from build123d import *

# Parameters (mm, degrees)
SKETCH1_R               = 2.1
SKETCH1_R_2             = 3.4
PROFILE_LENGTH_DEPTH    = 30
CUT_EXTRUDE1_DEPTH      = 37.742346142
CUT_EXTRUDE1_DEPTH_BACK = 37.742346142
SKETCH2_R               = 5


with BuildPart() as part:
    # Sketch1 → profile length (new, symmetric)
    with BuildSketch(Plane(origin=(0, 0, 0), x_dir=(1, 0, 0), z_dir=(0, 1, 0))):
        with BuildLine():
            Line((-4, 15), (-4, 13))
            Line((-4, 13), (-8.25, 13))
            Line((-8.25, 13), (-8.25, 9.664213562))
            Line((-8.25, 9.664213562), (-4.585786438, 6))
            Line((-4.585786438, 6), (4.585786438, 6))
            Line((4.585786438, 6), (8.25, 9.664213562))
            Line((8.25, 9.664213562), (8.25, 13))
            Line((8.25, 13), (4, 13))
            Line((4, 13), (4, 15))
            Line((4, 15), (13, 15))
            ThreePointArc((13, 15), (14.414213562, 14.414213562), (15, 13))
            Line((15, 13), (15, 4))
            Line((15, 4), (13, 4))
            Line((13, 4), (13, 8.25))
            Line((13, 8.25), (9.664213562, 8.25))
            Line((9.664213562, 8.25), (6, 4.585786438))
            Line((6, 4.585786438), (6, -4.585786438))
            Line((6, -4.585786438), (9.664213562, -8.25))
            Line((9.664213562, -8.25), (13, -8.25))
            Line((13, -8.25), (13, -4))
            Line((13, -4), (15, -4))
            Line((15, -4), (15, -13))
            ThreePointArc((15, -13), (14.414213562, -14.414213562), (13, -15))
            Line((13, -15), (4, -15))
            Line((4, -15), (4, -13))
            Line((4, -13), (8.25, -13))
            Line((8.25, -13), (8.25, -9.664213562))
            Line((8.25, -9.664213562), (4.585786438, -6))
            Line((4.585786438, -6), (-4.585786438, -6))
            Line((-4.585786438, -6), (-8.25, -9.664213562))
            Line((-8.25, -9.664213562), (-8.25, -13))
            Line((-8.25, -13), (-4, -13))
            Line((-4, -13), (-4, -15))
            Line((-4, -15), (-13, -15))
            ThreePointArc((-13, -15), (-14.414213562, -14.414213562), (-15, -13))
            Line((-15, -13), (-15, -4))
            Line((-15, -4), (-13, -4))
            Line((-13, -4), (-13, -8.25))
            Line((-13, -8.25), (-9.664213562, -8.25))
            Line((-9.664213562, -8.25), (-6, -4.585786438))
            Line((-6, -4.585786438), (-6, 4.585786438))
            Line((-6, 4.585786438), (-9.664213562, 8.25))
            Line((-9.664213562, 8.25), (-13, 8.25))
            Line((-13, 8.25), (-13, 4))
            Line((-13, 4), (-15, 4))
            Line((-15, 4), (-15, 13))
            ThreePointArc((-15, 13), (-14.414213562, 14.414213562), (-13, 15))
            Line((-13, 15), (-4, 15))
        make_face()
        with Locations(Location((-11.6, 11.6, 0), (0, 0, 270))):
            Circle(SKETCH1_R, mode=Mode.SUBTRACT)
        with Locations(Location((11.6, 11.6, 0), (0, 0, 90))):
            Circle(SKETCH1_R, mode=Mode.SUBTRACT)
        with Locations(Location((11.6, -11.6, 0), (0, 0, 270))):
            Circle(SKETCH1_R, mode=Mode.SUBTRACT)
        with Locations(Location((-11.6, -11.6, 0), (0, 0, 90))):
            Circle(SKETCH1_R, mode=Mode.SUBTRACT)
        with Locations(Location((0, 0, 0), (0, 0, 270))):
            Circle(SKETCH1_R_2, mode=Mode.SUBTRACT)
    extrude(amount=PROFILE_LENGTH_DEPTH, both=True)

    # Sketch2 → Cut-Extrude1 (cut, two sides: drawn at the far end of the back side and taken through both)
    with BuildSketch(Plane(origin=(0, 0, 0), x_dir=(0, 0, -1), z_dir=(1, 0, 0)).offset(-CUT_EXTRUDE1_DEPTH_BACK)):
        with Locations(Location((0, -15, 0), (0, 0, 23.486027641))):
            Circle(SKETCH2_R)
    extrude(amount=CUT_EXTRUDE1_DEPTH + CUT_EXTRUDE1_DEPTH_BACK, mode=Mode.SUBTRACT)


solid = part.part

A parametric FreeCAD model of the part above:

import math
import FreeCAD as App
import Part
import Sketcher
from FreeCAD import Vector
Q = App.Units.Quantity

doc = App.newDocument("Part")
body = doc.addObject("PartDesign::Body", "Body")

# Sketch on XZ plane
sketch1 = doc.addObject("Sketcher::SketchObject", "Sketch")
body.addObject(sketch1)
sketch1.AttachmentSupport = (doc.XZ_Plane, [""])
sketch1.MapMode = "FlatFace"
sketch1.addGeometry([
    Part.LineSegment(Vector(-4, -13, 0), Vector(-4, -15, 0)),  # 0
    Part.LineSegment(Vector(-4, -15, 0), Vector(-13, -15, 0)),  # 1
    Part.ArcOfCircle(Part.Circle(Vector(-13, -13, 0), Vector(0, 0, 1), 2), math.radians(-180), math.radians(-90)),  # 2
    Part.LineSegment(Vector(-15, -13, 0), Vector(-15, -4, 0)),  # 3
    Part.LineSegment(Vector(-15, -4, 0), Vector(-13, -4, 0)),  # 4
    Part.LineSegment(Vector(-13, -4, 0), Vector(-13, -8.2, 0)),  # 5
    Part.LineSegment(Vector(-13, -8.2, 0), Vector(-9.7, -8.2, 0)),  # 6
    Part.LineSegment(Vector(-9.7, -8.2, 0), Vector(-6, -4.6, 0)),  # 7
    Part.LineSegment(Vector(-6, -4.6, 0), Vector(-6, 4.6, 0)),  # 8
    Part.LineSegment(Vector(-6, 4.6, 0), Vector(-9.7, 8.2, 0)),  # 9
    Part.LineSegment(Vector(-9.7, 8.2, 0), Vector(-13, 8.2, 0)),  # 10
    Part.LineSegment(Vector(-13, 8.2, 0), Vector(-13, 4, 0)),  # 11
    Part.LineSegment(Vector(-13, 4, 0), Vector(-15, 4, 0)),  # 12
    Part.LineSegment(Vector(-15, 4, 0), Vector(-15, 13, 0)),  # 13
    Part.ArcOfCircle(Part.Circle(Vector(-13, 13, 0), Vector(0, 0, 1), 2), math.radians(90), math.radians(180)),  # 14
    Part.LineSegment(Vector(-13, 15, 0), Vector(-4, 15, 0)),  # 15
    Part.LineSegment(Vector(-4, 15, 0), Vector(-4, 13, 0)),  # 16
    Part.LineSegment(Vector(-4, 13, 0), Vector(-8.2, 13, 0)),  # 17
    Part.LineSegment(Vector(-8.2, 13, 0), Vector(-8.2, 9.7, 0)),  # 18
    Part.LineSegment(Vector(-8.2, 9.7, 0), Vector(-4.6, 6, 0)),  # 19
    Part.LineSegment(Vector(-4.6, 6, 0), Vector(4.6, 6, 0)),  # 20
    Part.LineSegment(Vector(4.6, 6, 0), Vector(8.2, 9.7, 0)),  # 21
    Part.LineSegment(Vector(8.2, 9.7, 0), Vector(8.2, 13, 0)),  # 22
    Part.LineSegment(Vector(8.2, 13, 0), Vector(4, 13, 0)),  # 23
    Part.LineSegment(Vector(4, 13, 0), Vector(4, 15, 0)),  # 24
    Part.LineSegment(Vector(4, 15, 0), Vector(13, 15, 0)),  # 25
    Part.ArcOfCircle(Part.Circle(Vector(13, 13, 0), Vector(0, 0, 1), 2), math.radians(0), math.radians(90)),  # 26
    Part.LineSegment(Vector(15, 13, 0), Vector(15, 4, 0)),  # 27
    Part.LineSegment(Vector(15, 4, 0), Vector(13, 4, 0)),  # 28
    Part.LineSegment(Vector(13, 4, 0), Vector(13, 8.2, 0)),  # 29
    Part.LineSegment(Vector(13, 8.2, 0), Vector(9.7, 8.2, 0)),  # 30
    Part.LineSegment(Vector(9.7, 8.2, 0), Vector(6, 4.6, 0)),  # 31
    Part.LineSegment(Vector(6, 4.6, 0), Vector(6, -4.6, 0)),  # 32
    Part.LineSegment(Vector(6, -4.6, 0), Vector(9.7, -8.2, 0)),  # 33
    Part.LineSegment(Vector(9.7, -8.2, 0), Vector(13, -8.2, 0)),  # 34
    Part.LineSegment(Vector(13, -8.2, 0), Vector(13, -4, 0)),  # 35
    Part.LineSegment(Vector(13, -4, 0), Vector(15, -4, 0)),  # 36
    Part.LineSegment(Vector(15, -4, 0), Vector(15, -13, 0)),  # 37
    Part.ArcOfCircle(Part.Circle(Vector(13, -13, 0), Vector(0, 0, 1), 2), math.radians(-90), math.radians(0)),  # 38
    Part.LineSegment(Vector(13, -15, 0), Vector(4, -15, 0)),  # 39
    Part.LineSegment(Vector(4, -15, 0), Vector(4, -13, 0)),  # 40
    Part.LineSegment(Vector(4, -13, 0), Vector(8.2, -13, 0)),  # 41
    Part.LineSegment(Vector(8.2, -13, 0), Vector(8.2, -9.7, 0)),  # 42
    Part.LineSegment(Vector(8.2, -9.7, 0), Vector(4.6, -6, 0)),  # 43
    Part.LineSegment(Vector(4.6, -6, 0), Vector(-4.6, -6, 0)),  # 44
    Part.LineSegment(Vector(-4.6, -6, 0), Vector(-8.2, -9.7, 0)),  # 45
    Part.LineSegment(Vector(-8.2, -9.7, 0), Vector(-8.2, -13, 0)),  # 46
    Part.LineSegment(Vector(-8.2, -13, 0), Vector(-4, -13, 0)),  # 47
    Part.Circle(Vector(11.6, 11.6, 0), Vector(0, 0, 1), 2.1),  # 48
    Part.Circle(Vector(-11.6, 11.6, 0), Vector(0, 0, 1), 2.1),  # 49
    Part.Circle(Vector(11.6, -11.6, 0), Vector(0, 0, 1), 2.1),  # 50
    Part.Circle(Vector(0, 0, 0), Vector(0, 0, 1), 3.4),  # 51
    Part.Circle(Vector(-11.6, -11.6, 0), Vector(0, 0, 1), 2.1),  # 52
], False)
sketch1.addConstraint([
    Sketcher.Constraint("Coincident", 0, 2, 1, 1),
    Sketcher.Constraint("Tangent", 1, 2, 2, 2),
    Sketcher.Constraint("Tangent", 2, 1, 3, 1),
    Sketcher.Constraint("Coincident", 3, 2, 4, 1),
    Sketcher.Constraint("Coincident", 4, 2, 5, 1),
    Sketcher.Constraint("Coincident", 5, 2, 6, 1),
    Sketcher.Constraint("Coincident", 6, 2, 7, 1),
    Sketcher.Constraint("Coincident", 7, 2, 8, 1),
    Sketcher.Constraint("Coincident", 8, 2, 9, 1),
    Sketcher.Constraint("Coincident", 9, 2, 10, 1),
    Sketcher.Constraint("Coincident", 10, 2, 11, 1),
    Sketcher.Constraint("Coincident", 11, 2, 12, 1),
    Sketcher.Constraint("Coincident", 12, 2, 13, 1),
    Sketcher.Constraint("Tangent", 13, 2, 14, 2),
    Sketcher.Constraint("Tangent", 14, 1, 15, 1),
    Sketcher.Constraint("Coincident", 15, 2, 16, 1),
    Sketcher.Constraint("Coincident", 16, 2, 17, 1),
    Sketcher.Constraint("Coincident", 17, 2, 18, 1),
    Sketcher.Constraint("Coincident", 18, 2, 19, 1),
    Sketcher.Constraint("Coincident", 19, 2, 20, 1),
    Sketcher.Constraint("Coincident", 20, 2, 21, 1),
    Sketcher.Constraint("Coincident", 21, 2, 22, 1),
    Sketcher.Constraint("Coincident", 22, 2, 23, 1),
    Sketcher.Constraint("Coincident", 23, 2, 24, 1),
    Sketcher.Constraint("Coincident", 24, 2, 25, 1),
    Sketcher.Constraint("Tangent", 25, 2, 26, 2),
    Sketcher.Constraint("Tangent", 26, 1, 27, 1),
    Sketcher.Constraint("Coincident", 27, 2, 28, 1),
    Sketcher.Constraint("Coincident", 28, 2, 29, 1),
    Sketcher.Constraint("Coincident", 29, 2, 30, 1),
    Sketcher.Constraint("Coincident", 30, 2, 31, 1),
    Sketcher.Constraint("Coincident", 31, 2, 32, 1),
    Sketcher.Constraint("Coincident", 32, 2, 33, 1),
    Sketcher.Constraint("Coincident", 33, 2, 34, 1),
    Sketcher.Constraint("Coincident", 34, 2, 35, 1),
    Sketcher.Constraint("Coincident", 35, 2, 36, 1),
    Sketcher.Constraint("Coincident", 36, 2, 37, 1),
    Sketcher.Constraint("Tangent", 37, 2, 38, 2),
    Sketcher.Constraint("Tangent", 38, 1, 39, 1),
    Sketcher.Constraint("Coincident", 39, 2, 40, 1),
    Sketcher.Constraint("Coincident", 40, 2, 41, 1),
    Sketcher.Constraint("Coincident", 41, 2, 42, 1),
    Sketcher.Constraint("Coincident", 42, 2, 43, 1),
    Sketcher.Constraint("Coincident", 43, 2, 44, 1),
    Sketcher.Constraint("Coincident", 44, 2, 45, 1),
    Sketcher.Constraint("Coincident", 45, 2, 46, 1),
    Sketcher.Constraint("Coincident", 46, 2, 47, 1),
    Sketcher.Constraint("Coincident", 47, 2, 0, 1),
    Sketcher.Constraint("Vertical", 0),
    Sketcher.Constraint("Horizontal", 1),
    Sketcher.Constraint("Vertical", 3),
    Sketcher.Constraint("Horizontal", 4),
    Sketcher.Constraint("Vertical", 5),
    Sketcher.Constraint("Horizontal", 6),
    Sketcher.Constraint("Vertical", 8),
    Sketcher.Constraint("Horizontal", 10),
    Sketcher.Constraint("Vertical", 11),
    Sketcher.Constraint("Horizontal", 12),
    Sketcher.Constraint("Vertical", 13),
    Sketcher.Constraint("Horizontal", 15),
    Sketcher.Constraint("Vertical", 16),
    Sketcher.Constraint("Horizontal", 17),
    Sketcher.Constraint("Vertical", 18),
    Sketcher.Constraint("Horizontal", 20),
    Sketcher.Constraint("Vertical", 22),
    Sketcher.Constraint("Horizontal", 23),
    Sketcher.Constraint("Vertical", 24),
    Sketcher.Constraint("Horizontal", 25),
    Sketcher.Constraint("Vertical", 27),
    Sketcher.Constraint("Horizontal", 28),
    Sketcher.Constraint("Vertical", 29),
    Sketcher.Constraint("Horizontal", 30),
    Sketcher.Constraint("Vertical", 32),
    Sketcher.Constraint("Horizontal", 34),
    Sketcher.Constraint("Vertical", 35),
    Sketcher.Constraint("Horizontal", 36),
    Sketcher.Constraint("Vertical", 37),
    Sketcher.Constraint("Horizontal", 39),
    Sketcher.Constraint("Vertical", 40),
    Sketcher.Constraint("Horizontal", 41),
    Sketcher.Constraint("Vertical", 42),
    Sketcher.Constraint("Horizontal", 44),
    Sketcher.Constraint("Vertical", 46),
    Sketcher.Constraint("Horizontal", 47),
    Sketcher.Constraint("Coincident", 51, 3, -1, 1),
    Sketcher.Constraint("Equal", 2, 14),
    Sketcher.Constraint("Equal", 14, 26),
    Sketcher.Constraint("Equal", 26, 38),
    Sketcher.Constraint("Equal", 48, 49),
    Sketcher.Constraint("Equal", 49, 50),
    Sketcher.Constraint("Equal", 50, 52),
    Sketcher.Constraint("Symmetric", 2, 3, 26, 3, -1, 1),
    Sketcher.Constraint("Symmetric", 14, 3, 38, 3, -1, 1),
    Sketcher.Constraint("Symmetric", 49, 3, 50, 3, -1, 1),
    Sketcher.Constraint("Symmetric", 48, 3, 52, 3, -1, 1),
    Sketcher.Constraint("Symmetric", 4, 2, 28, 2, -1, 1),
    Sketcher.Constraint("Symmetric", 6, 2, 30, 2, -1, 1),
    Sketcher.Constraint("Symmetric", 7, 2, 31, 2, -1, 1),
    Sketcher.Constraint("Symmetric", 9, 2, 33, 2, -1, 1),
    Sketcher.Constraint("Symmetric", 11, 2, 35, 2, -1, 1),
    Sketcher.Constraint("Symmetric", 16, 2, 40, 2, -1, 1),
    Sketcher.Constraint("Symmetric", 18, 2, 42, 2, -1, 1),
    Sketcher.Constraint("Symmetric", 19, 2, 43, 2, -1, 1),
    Sketcher.Constraint("Symmetric", 21, 2, 45, 2, -1, 1),
    Sketcher.Constraint("Symmetric", 23, 2, 47, 2, -1, 1),
    Sketcher.Constraint("Symmetric", 14, 3, 26, 3, -2),
    Sketcher.Constraint("Symmetric", 48, 3, 49, 3, -2),
    Sketcher.Constraint("Symmetric", 18, 2, 21, 2, -2),
    Sketcher.Constraint("Symmetric", 16, 2, 23, 2, -2),
    Sketcher.Constraint("Symmetric", 11, 2, 28, 2, -2),
    Sketcher.Constraint("Symmetric", 9, 2, 30, 2, -2),
    Sketcher.Constraint("Perpendicular", 7, 9),
    Sketcher.Constraint("Parallel", 9, 19),
    Sketcher.Constraint("Perpendicular", 19, 21),
    Sketcher.Constraint("Perpendicular", 31, 33),
    Sketcher.Constraint("Perpendicular", 43, 45),
    Sketcher.Constraint("Horizontal", 13, 2, 16, 2),
    Sketcher.Constraint("Horizontal", 8, 2, 31, 2),
    Sketcher.Constraint("Vertical", 1, 2, 4, 2),
    Sketcher.Constraint("Equal", 39, 3),
    Sketcher.Constraint("Equal", 47, 5),
    Sketcher.Constraint("Equal", 44, 8),
    Sketcher.Constraint("Equal", 34, 18),
    Sketcher.Constraint("Equal", 9, 19),
    Sketcher.Constraint("Radius", 2, Q("2 mm")),
    Sketcher.Constraint("Diameter", 48, Q("4.2 mm")),
    Sketcher.Constraint("Diameter", 51, Q("6.8 mm")),
    Sketcher.Constraint("DistanceX", 1, 2, 1, 1, Q("9 mm")),
    Sketcher.Constraint("DistanceX", 2, 3, -1, 1, Q("13 mm")),
    Sketcher.Constraint("DistanceX", 7, 2, -1, 1, Q("6 mm")),
    Sketcher.Constraint("DistanceX", 17, 2, 17, 1, Q("4.25 mm")),
    Sketcher.Constraint("DistanceX", -1, 1, 48, 3, Q("11.6 mm")),
    Sketcher.Constraint("DistanceY", -1, 1, 48, 3, Q("11.6 mm")),
    Sketcher.Constraint("Distance", 7, Q("5.181981 mm")),
])
pad1 = doc.addObject("PartDesign::Pad", "Pad")
body.addObject(pad1)
pad1.Profile = sketch1
pad1.Length = 60
pad1.Midplane = True

# Sketch on YZ plane
sketch2 = doc.addObject("Sketcher::SketchObject", "Sketch001")
body.addObject(sketch2)
sketch2.AttachmentSupport = (doc.YZ_Plane, [""])
sketch2.MapMode = "FlatFace"
sketch2.addGeometry(Part.Circle(Vector(-15, 0, 0), Vector(0, 0, 1), 5), False)
sketch2.addConstraint([
    Sketcher.Constraint("PointOnObject", 0, 3, -1),
    Sketcher.Constraint("Diameter", 0, Q("10 mm")),
    Sketcher.Constraint("DistanceX", 0, 3, -1, 1, Q("15 mm")),
])
pocket1 = doc.addObject("PartDesign::Pocket", "Pocket")
body.addObject(pocket1)
pocket1.Profile = sketch2
pocket1.Type = "ThroughAll"
pocket1.Midplane = True

doc.recompute()
